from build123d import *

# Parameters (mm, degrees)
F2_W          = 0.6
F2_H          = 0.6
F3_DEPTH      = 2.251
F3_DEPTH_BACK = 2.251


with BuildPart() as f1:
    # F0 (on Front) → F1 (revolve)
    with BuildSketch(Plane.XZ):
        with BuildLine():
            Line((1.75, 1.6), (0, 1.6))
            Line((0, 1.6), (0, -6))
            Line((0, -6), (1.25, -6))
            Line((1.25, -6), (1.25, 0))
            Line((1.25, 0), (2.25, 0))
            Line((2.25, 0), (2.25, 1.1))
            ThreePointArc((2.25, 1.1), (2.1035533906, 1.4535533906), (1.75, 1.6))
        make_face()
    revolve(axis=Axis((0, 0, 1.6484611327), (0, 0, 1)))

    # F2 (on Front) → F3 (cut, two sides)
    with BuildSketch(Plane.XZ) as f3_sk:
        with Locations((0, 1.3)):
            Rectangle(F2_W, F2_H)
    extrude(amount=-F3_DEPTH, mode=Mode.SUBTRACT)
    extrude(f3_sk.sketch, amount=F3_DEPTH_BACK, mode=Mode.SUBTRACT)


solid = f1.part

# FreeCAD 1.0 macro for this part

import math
import FreeCAD as App
import Part
import Sketcher
from FreeCAD import Vector
Q = App.Units.Quantity


def add_polygon(sketch, points):
    """Adds a closed chain of lines whose ends are joined by coincident constraints."""
    first, n = sketch.GeometryCount, len(points)
    for a, b in zip(points, points[1:] + points[:1]):
        sketch.addGeometry(Part.LineSegment(App.Vector(*a, 0), App.Vector(*b, 0)), False)
    for i in range(n):
        sketch.addConstraint(Sketcher.Constraint("Coincident", first + i, 2, first + (i + 1) % n, 1))

doc = App.newDocument("Part")
params = doc.addObject("Spreadsheet::Sheet", "Params")
for row, (alias, value) in enumerate([
    ("sketch1_radius", "0.5 mm"),
    ("sketch1_width", "1 mm"),
    ("sketch1_height", "6 mm"),
    ("sketch1_height2", "7.6 mm"),
    ("sketch1_width2", "1.75 mm"),
    ("revolution_angle", "360 deg"),
    ("sketch2_width", "0.6 mm"),
], start=1):
    params.set(f"A{row}", alias)
    params.set(f"B{row}", "=" + value)
    params.setAlias(f"B{row}", alias)

body = doc.addObject("PartDesign::Body", "Body")

sketch1 = doc.addObject("Sketcher::SketchObject", "Sketch")
body.addObject(sketch1)
sketch1.AttachmentSupport = (doc.XZ_Plane, [""])
sketch1.MapMode = "FlatFace"
sketch1.addGeometry([
    Part.LineSegment(Vector(1.8, 1.6, 0), Vector(0, 1.6, 0)),
    Part.LineSegment(Vector(0, 1.6, 0), Vector(0, -6, 0)),
    Part.LineSegment(Vector(0, -6, 0), Vector(1.2, -6, 0)),
    Part.LineSegment(Vector(1.2, -6, 0), Vector(1.2, 0, 0)),
    Part.LineSegment(Vector(1.2, 0, 0), Vector(2.2, 0, 0)),
    Part.LineSegment(Vector(2.2, 0, 0), Vector(2.2, 1.1, 0)),
    Part.ArcOfCircle(Part.Circle(Vector(1.8, 1.1, 0), Vector(0, 0, 1), 0.5), math.radians(0), math.radians(90)),
], False)
sketch1.addConstraint([
    Sketcher.Constraint("Coincident", 0, 2, 1, 1),
    Sketcher.Constraint("Coincident", 1, 2, 2, 1),
    Sketcher.Constraint("Coincident", 2, 2, 3, 1),
    Sketcher.Constraint("Coincident", 3, 2, 4, 1),
    Sketcher.Constraint("Coincident", 4, 2, 5, 1),
    Sketcher.Constraint("Tangent", 5, 2, 6, 1),
    Sketcher.Constraint("Tangent", 6, 2, 0, 1),
    Sketcher.Constraint("Horizontal", 0),
    Sketcher.Constraint("Vertical", 1),
    Sketcher.Constraint("Horizontal", 2),
    Sketcher.Constraint("Vertical", 3),
    Sketcher.Constraint("Horizontal", 4),
    Sketcher.Constraint("Vertical", 5),
    Sketcher.Constraint("PointOnObject", 0, 2, -2),
    Sketcher.Constraint("PointOnObject", 3, 2, -1),
    Sketcher.Constraint("Radius", 6, Q("0.5 mm")),
    Sketcher.Constraint("DistanceX", 4, 1, 4, 2, Q("1 mm")),
    Sketcher.Constraint("DistanceY", 3, 1, 3, 2, Q("6 mm")),
    Sketcher.Constraint("DistanceY", 1, 2, 1, 1, Q("7.6 mm")),
    Sketcher.Constraint("DistanceX", 0, 2, 0, 1, Q("1.75 mm")),
])
sketch1.setExpression("Constraints[15]", "Params.sketch1_radius")
sketch1.setExpression("Constraints[16]", "Params.sketch1_width")
sketch1.setExpression("Constraints[17]", "Params.sketch1_height")
sketch1.setExpression("Constraints[18]", "Params.sketch1_height2")
sketch1.setExpression("Constraints[19]", "Params.sketch1_width2")
revolution = doc.addObject("PartDesign::Revolution", "Revolution")
body.addObject(revolution)
revolution.Profile = sketch1
revolution.ReferenceAxis = (sketch1, ["V_Axis"])
revolution.setExpression("Angle", "Params.revolution_angle")

sketch2 = doc.addObject("Sketcher::SketchObject", "Sketch001")
body.addObject(sketch2)
sketch2.AttachmentSupport = (doc.XZ_Plane, [""])
sketch2.MapMode = "FlatFace"
add_polygon(sketch2, [(-0.3, 1.6), (-0.3, 1), (0.3, 1), (0.3, 1.6)])
sketch2.addConstraint([
    Sketcher.Constraint("Vertical", 0),
    Sketcher.Constraint("Horizontal", 1),
    Sketcher.Constraint("Vertical", 2),
    Sketcher.Constraint("Horizontal", 3),
    Sketcher.Constraint("Equal", 3, 0),
    Sketcher.Constraint("DistanceX", 1, 1, 1, 2, Q("0.6 mm")),
    Sketcher.Constraint("DistanceY", -1, 1, 0, 2, Q("1 mm")),
    Sketcher.Constraint("DistanceX", 0, 2, -1, 1, Q("0.3 mm")),
])
sketch2.setExpression("Constraints[9]", "Params.sketch2_width")
pocket1 = doc.addObject("PartDesign::Pocket", "Pocket")
body.addObject(pocket1)
pocket1.Profile = sketch2
pocket1.Type = "ThroughAll"
pocket1.Midplane = True

doc.recompute()
